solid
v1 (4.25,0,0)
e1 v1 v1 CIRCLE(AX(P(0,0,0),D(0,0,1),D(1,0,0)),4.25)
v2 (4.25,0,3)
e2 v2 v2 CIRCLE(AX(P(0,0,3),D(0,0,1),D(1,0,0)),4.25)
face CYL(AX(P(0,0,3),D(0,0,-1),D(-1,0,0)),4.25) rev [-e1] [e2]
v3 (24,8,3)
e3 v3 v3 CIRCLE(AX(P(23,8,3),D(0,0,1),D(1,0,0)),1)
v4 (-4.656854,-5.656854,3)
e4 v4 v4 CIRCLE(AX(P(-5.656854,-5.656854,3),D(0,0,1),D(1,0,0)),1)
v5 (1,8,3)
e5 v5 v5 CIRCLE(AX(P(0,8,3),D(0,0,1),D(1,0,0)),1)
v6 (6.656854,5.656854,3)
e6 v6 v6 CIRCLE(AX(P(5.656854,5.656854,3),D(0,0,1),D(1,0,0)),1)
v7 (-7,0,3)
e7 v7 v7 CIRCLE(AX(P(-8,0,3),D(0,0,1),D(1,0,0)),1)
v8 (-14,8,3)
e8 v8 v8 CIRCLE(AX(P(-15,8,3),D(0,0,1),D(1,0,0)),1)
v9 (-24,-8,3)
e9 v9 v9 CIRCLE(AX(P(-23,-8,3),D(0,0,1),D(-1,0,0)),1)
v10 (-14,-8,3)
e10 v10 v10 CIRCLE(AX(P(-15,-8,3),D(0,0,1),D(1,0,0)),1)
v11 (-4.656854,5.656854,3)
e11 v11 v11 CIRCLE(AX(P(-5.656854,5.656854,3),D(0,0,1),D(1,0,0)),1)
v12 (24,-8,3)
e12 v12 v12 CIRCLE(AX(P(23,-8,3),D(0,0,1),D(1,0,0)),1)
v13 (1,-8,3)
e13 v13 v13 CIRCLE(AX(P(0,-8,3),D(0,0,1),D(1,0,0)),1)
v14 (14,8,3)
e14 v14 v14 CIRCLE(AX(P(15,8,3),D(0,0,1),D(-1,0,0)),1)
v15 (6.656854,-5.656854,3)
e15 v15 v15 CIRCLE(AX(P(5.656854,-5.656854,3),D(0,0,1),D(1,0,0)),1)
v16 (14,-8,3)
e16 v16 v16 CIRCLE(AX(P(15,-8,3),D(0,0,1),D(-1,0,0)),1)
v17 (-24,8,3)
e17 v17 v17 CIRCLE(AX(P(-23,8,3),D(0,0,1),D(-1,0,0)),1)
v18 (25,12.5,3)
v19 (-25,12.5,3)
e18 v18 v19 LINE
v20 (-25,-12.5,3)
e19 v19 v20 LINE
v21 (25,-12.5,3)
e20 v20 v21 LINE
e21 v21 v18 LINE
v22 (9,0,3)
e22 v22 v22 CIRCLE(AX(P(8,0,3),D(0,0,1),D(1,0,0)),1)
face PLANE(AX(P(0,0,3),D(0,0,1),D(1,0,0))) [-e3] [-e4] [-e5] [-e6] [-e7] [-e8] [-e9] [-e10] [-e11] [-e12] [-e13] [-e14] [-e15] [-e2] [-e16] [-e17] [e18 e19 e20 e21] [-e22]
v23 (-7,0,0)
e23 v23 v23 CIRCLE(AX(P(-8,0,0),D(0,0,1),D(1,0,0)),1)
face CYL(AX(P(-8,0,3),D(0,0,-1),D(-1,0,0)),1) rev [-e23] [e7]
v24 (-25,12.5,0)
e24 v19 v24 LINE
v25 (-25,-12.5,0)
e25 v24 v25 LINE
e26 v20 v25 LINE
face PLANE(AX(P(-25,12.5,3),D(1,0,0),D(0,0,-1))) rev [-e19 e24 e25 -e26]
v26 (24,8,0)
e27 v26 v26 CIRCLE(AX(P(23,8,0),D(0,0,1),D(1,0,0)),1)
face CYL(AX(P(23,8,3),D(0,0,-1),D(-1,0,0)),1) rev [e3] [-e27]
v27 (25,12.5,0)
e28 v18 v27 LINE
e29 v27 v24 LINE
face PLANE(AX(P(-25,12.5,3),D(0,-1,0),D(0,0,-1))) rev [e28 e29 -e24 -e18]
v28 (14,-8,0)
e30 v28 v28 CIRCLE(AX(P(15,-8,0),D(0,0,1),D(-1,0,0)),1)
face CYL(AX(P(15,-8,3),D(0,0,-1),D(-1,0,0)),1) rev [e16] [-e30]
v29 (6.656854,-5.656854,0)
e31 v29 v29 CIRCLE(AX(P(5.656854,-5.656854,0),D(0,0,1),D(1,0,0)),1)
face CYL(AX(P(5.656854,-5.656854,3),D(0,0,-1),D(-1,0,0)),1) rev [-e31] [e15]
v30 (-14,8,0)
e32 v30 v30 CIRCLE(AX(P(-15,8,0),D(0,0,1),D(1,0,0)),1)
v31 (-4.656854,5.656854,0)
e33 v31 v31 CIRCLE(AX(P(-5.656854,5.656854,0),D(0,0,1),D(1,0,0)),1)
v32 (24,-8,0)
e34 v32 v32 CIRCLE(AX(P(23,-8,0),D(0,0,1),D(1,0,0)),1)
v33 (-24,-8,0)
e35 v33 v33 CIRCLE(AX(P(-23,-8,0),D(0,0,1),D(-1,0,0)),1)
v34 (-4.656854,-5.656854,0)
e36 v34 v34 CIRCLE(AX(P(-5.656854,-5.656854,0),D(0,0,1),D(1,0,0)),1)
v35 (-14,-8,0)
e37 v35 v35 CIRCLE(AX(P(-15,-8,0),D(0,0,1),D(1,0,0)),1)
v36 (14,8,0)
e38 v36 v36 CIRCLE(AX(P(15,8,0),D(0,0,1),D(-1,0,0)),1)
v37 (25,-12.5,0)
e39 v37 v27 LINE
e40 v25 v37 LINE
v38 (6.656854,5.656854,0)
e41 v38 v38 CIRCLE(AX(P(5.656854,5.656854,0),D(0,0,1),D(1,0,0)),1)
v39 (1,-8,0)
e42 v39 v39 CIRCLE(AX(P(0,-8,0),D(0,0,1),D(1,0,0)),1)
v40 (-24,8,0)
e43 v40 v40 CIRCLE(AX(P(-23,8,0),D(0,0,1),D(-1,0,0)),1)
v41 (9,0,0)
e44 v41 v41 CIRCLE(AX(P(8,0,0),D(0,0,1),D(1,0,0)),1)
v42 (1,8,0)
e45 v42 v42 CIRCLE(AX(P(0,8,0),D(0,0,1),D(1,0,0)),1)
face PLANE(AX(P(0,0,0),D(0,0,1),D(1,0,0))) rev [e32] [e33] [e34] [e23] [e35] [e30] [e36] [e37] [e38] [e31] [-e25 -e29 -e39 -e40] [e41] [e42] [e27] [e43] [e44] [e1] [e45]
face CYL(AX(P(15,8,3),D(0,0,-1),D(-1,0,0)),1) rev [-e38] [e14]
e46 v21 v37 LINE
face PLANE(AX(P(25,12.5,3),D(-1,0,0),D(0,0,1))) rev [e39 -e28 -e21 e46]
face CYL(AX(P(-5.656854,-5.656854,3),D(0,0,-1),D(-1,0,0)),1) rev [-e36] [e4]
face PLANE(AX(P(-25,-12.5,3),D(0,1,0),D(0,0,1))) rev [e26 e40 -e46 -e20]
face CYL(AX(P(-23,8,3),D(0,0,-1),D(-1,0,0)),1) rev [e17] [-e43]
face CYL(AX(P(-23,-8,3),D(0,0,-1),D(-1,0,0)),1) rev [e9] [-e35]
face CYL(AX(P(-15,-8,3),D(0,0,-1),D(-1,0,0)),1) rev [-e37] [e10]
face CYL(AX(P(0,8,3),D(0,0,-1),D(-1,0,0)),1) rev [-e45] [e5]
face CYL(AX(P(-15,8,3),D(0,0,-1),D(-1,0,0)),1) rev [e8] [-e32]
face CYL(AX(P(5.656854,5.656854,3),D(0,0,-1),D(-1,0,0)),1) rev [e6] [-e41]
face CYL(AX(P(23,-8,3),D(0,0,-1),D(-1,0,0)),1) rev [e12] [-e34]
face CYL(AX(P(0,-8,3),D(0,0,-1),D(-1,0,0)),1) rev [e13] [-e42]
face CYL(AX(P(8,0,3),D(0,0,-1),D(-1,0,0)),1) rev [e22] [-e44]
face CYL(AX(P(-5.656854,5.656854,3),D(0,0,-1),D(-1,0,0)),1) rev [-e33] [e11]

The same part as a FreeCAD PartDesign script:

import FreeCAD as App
import Part
import Sketcher

V = App.Vector


def add_polygon(sketch, points):
    """Adds a closed chain of lines whose ends are joined by coincident constraints."""
    first, n = sketch.GeometryCount, len(points)
    for a, b in zip(points, points[1:] + points[:1]):
        sketch.addGeometry(Part.LineSegment(App.Vector(*a, 0), App.Vector(*b, 0)), False)
    for i in range(n):
        sketch.addConstraint(Sketcher.Constraint("Coincident", first + i, 2, first + (i + 1) % n, 1))

doc = App.newDocument("Part")
params = doc.addObject("Spreadsheet::Sheet", "Params")
for row, (alias, value) in enumerate([
    ("sketch1_diameter", "2 mm"),
    ("sketch1_diameter2", "8.5 mm"),
    ("sketch1_width", "50 mm"),
    ("sketch1_height", "25 mm"),
    ("pad1_length", "3 mm"),
], start=1):
    params.set(f"A{row}", alias)
    params.set(f"B{row}", "=" + value)
    params.setAlias(f"B{row}", alias)

body = doc.addObject("PartDesign::Body", "Body")

# Sketch on XY plane
sketch1 = body.newObject("Sketcher::SketchObject", "Sketch")
sketch1.AttachmentSupport = (doc.getObject("XY_Plane"), [""])
sketch1.MapMode = "FlatFace"
add_polygon(sketch1, [(-25, 12.5), (-25, -12.5), (25, -12.5), (25, 12.5)])  # lines 0-3
sketch1.addGeometry(Part.Circle(V(-23, -8, 0), V(0, 0, 1), 1), False)  # 4
sketch1.addGeometry(Part.Circle(V(-15, -8, 0), V(0, 0, 1), 1), False)  # 5
sketch1.addGeometry(Part.Circle(V(-5.656854, -5.656854, 0), V(0, 0, 1), 1), False)  # 6
sketch1.addGeometry(Part.Circle(V(0, -8, 0), V(0, 0, 1), 1), False)  # 7
sketch1.addGeometry(Part.Circle(V(5.656854, -5.656854, 0), V(0, 0, 1), 1), False)  # 8
sketch1.addGeometry(Part.Circle(V(15, -8, 0), V(0, 0, 1), 1), False)  # 9
sketch1.addGeometry(Part.Circle(V(23, -8, 0), V(0, 0, 1), 1), False)  # 10
sketch1.addGeometry(Part.Circle(V(-8, 0, 0), V(0, 0, 1), 1), False)  # 11
sketch1.addGeometry(Part.Circle(V(-23, 8, 0), V(0, 0, 1), 1), False)  # 12
sketch1.addGeometry(Part.Circle(V(-15, 8, 0), V(0, 0, 1), 1), False)  # 13
sketch1.addGeometry(Part.Circle(V(-5.656854, 5.656854, 0), V(0, 0, 1), 1), False)  # 14
sketch1.addGeometry(Part.Circle(V(0, 0, 0), V(0, 0, 1), 4.25), False)  # 15
sketch1.addGeometry(Part.Circle(V(8, 0, 0), V(0, 0, 1), 1), False)  # 16
sketch1.addGeometry(Part.Circle(V(5.656854, 5.656854, 0), V(0, 0, 1), 1), False)  # 17
sketch1.addGeometry(Part.Circle(V(0, 8, 0), V(0, 0, 1), 1), False)  # 18
sketch1.addGeometry(Part.Circle(V(15, 8, 0), V(0, 0, 1), 1), False)  # 19
sketch1.addGeometry(Part.Circle(V(23, 8, 0), V(0, 0, 1), 1), False)  # 20
sketch1.addConstraint([
    Sketcher.Constraint("Vertical", 0),
    Sketcher.Constraint("Horizontal", 1),
    Sketcher.Constraint("Vertical", 2),
    Sketcher.Constraint("Horizontal", 3),
    Sketcher.Constraint("Coincident", 15, 3, -1, 1),
    Sketcher.Constraint("Equal", 4, 5),
    Sketcher.Constraint("Equal", 5, 6),
    Sketcher.Constraint("Equal", 6, 7),
    Sketcher.Constraint("Equal", 7, 8),
    Sketcher.Constraint("Equal", 8, 9),
    Sketcher.Constraint("Equal", 9, 10),
    Sketcher.Constraint("Equal", 10, 11),
    Sketcher.Constraint("Equal", 11, 12),
    Sketcher.Constraint("Equal", 12, 13),
    Sketcher.Constraint("Equal", 13, 14),
    Sketcher.Constraint("Equal", 14, 16),
    Sketcher.Constraint("Equal", 16, 17),
    Sketcher.Constraint("Equal", 17, 18),
    Sketcher.Constraint("Equal", 18, 19),
    Sketcher.Constraint("Equal", 19, 20),
    Sketcher.Constraint("Symmetric", 10, 3, 12, 3, -1, 1),
    Sketcher.Constraint("Symmetric", 9, 3, 13, 3, -1, 1),
    Sketcher.Constraint("Symmetric", 8, 3, 14, 3, -1, 1),
    Sketcher.Constraint("Symmetric", 11, 3, 16, 3, -1, 1),
    Sketcher.Constraint("Symmetric", 6, 3, 17, 3, -1, 1),
    Sketcher.Constraint("Symmetric", 7, 3, 18, 3, -1, 1),
    Sketcher.Constraint("Symmetric", 5, 3, 19, 3, -1, 1),
    Sketcher.Constraint("Symmetric", 4, 3, 20, 3, -1, 1),
    Sketcher.Constraint("Symmetric", 0, 2, 2, 2, -1, 1),
    Sketcher.Constraint("Symmetric", 6, 3, 8, 3, -2),
    Sketcher.Constraint("Symmetric", 5, 3, 9, 3, -2),
    Sketcher.Constraint("Symmetric", 4, 3, 10, 3, -2),
    Sketcher.Constraint("PointOnObject", 7, 3, -2),
    Sketcher.Constraint("PointOnObject", 11, 3, -1),
    Sketcher.Constraint("Horizontal", 4, 3, 5, 3),
    Sketcher.Constraint("Horizontal", 5, 3, 7, 3),
    Sketcher.Constraint("Diameter", 4, 2.0),
    Sketcher.Constraint("Diameter", 15, 8.5),
    Sketcher.Constraint("DistanceX", 1, 1, 1, 2, 50.0),
    Sketcher.Constraint("DistanceY", 0, 2, 0, 1, 25.0),
    Sketcher.Constraint("DistanceX", 4, 3, -1, 1, 23.0),
    Sketcher.Constraint("DistanceY", 4, 3, -1, 1, 8.0),
    Sketcher.Constraint("DistanceX", 5, 3, -1, 1, 15.0),
    Sketcher.Constraint("DistanceX", 11, 3, -1, 1, 8.0),
    Sketcher.Constraint("DistanceX", 6, 3, 8, 3, 11.313708),
    Sketcher.Constraint("DistanceY", 6, 3, 14, 3, 11.313708),
])
sketch1.setExpression("Constraints[40]", "Params.sketch1_diameter")
sketch1.setExpression("Constraints[41]", "Params.sketch1_diameter2")
sketch1.setExpression("Constraints[42]", "Params.sketch1_width")
sketch1.setExpression("Constraints[43]", "Params.sketch1_height")
pad1 = body.newObject("PartDesign::Pad", "Pad")
pad1.Profile = sketch1
pad1.setExpression("Length", "Params.pad1_length")

doc.recompute()
